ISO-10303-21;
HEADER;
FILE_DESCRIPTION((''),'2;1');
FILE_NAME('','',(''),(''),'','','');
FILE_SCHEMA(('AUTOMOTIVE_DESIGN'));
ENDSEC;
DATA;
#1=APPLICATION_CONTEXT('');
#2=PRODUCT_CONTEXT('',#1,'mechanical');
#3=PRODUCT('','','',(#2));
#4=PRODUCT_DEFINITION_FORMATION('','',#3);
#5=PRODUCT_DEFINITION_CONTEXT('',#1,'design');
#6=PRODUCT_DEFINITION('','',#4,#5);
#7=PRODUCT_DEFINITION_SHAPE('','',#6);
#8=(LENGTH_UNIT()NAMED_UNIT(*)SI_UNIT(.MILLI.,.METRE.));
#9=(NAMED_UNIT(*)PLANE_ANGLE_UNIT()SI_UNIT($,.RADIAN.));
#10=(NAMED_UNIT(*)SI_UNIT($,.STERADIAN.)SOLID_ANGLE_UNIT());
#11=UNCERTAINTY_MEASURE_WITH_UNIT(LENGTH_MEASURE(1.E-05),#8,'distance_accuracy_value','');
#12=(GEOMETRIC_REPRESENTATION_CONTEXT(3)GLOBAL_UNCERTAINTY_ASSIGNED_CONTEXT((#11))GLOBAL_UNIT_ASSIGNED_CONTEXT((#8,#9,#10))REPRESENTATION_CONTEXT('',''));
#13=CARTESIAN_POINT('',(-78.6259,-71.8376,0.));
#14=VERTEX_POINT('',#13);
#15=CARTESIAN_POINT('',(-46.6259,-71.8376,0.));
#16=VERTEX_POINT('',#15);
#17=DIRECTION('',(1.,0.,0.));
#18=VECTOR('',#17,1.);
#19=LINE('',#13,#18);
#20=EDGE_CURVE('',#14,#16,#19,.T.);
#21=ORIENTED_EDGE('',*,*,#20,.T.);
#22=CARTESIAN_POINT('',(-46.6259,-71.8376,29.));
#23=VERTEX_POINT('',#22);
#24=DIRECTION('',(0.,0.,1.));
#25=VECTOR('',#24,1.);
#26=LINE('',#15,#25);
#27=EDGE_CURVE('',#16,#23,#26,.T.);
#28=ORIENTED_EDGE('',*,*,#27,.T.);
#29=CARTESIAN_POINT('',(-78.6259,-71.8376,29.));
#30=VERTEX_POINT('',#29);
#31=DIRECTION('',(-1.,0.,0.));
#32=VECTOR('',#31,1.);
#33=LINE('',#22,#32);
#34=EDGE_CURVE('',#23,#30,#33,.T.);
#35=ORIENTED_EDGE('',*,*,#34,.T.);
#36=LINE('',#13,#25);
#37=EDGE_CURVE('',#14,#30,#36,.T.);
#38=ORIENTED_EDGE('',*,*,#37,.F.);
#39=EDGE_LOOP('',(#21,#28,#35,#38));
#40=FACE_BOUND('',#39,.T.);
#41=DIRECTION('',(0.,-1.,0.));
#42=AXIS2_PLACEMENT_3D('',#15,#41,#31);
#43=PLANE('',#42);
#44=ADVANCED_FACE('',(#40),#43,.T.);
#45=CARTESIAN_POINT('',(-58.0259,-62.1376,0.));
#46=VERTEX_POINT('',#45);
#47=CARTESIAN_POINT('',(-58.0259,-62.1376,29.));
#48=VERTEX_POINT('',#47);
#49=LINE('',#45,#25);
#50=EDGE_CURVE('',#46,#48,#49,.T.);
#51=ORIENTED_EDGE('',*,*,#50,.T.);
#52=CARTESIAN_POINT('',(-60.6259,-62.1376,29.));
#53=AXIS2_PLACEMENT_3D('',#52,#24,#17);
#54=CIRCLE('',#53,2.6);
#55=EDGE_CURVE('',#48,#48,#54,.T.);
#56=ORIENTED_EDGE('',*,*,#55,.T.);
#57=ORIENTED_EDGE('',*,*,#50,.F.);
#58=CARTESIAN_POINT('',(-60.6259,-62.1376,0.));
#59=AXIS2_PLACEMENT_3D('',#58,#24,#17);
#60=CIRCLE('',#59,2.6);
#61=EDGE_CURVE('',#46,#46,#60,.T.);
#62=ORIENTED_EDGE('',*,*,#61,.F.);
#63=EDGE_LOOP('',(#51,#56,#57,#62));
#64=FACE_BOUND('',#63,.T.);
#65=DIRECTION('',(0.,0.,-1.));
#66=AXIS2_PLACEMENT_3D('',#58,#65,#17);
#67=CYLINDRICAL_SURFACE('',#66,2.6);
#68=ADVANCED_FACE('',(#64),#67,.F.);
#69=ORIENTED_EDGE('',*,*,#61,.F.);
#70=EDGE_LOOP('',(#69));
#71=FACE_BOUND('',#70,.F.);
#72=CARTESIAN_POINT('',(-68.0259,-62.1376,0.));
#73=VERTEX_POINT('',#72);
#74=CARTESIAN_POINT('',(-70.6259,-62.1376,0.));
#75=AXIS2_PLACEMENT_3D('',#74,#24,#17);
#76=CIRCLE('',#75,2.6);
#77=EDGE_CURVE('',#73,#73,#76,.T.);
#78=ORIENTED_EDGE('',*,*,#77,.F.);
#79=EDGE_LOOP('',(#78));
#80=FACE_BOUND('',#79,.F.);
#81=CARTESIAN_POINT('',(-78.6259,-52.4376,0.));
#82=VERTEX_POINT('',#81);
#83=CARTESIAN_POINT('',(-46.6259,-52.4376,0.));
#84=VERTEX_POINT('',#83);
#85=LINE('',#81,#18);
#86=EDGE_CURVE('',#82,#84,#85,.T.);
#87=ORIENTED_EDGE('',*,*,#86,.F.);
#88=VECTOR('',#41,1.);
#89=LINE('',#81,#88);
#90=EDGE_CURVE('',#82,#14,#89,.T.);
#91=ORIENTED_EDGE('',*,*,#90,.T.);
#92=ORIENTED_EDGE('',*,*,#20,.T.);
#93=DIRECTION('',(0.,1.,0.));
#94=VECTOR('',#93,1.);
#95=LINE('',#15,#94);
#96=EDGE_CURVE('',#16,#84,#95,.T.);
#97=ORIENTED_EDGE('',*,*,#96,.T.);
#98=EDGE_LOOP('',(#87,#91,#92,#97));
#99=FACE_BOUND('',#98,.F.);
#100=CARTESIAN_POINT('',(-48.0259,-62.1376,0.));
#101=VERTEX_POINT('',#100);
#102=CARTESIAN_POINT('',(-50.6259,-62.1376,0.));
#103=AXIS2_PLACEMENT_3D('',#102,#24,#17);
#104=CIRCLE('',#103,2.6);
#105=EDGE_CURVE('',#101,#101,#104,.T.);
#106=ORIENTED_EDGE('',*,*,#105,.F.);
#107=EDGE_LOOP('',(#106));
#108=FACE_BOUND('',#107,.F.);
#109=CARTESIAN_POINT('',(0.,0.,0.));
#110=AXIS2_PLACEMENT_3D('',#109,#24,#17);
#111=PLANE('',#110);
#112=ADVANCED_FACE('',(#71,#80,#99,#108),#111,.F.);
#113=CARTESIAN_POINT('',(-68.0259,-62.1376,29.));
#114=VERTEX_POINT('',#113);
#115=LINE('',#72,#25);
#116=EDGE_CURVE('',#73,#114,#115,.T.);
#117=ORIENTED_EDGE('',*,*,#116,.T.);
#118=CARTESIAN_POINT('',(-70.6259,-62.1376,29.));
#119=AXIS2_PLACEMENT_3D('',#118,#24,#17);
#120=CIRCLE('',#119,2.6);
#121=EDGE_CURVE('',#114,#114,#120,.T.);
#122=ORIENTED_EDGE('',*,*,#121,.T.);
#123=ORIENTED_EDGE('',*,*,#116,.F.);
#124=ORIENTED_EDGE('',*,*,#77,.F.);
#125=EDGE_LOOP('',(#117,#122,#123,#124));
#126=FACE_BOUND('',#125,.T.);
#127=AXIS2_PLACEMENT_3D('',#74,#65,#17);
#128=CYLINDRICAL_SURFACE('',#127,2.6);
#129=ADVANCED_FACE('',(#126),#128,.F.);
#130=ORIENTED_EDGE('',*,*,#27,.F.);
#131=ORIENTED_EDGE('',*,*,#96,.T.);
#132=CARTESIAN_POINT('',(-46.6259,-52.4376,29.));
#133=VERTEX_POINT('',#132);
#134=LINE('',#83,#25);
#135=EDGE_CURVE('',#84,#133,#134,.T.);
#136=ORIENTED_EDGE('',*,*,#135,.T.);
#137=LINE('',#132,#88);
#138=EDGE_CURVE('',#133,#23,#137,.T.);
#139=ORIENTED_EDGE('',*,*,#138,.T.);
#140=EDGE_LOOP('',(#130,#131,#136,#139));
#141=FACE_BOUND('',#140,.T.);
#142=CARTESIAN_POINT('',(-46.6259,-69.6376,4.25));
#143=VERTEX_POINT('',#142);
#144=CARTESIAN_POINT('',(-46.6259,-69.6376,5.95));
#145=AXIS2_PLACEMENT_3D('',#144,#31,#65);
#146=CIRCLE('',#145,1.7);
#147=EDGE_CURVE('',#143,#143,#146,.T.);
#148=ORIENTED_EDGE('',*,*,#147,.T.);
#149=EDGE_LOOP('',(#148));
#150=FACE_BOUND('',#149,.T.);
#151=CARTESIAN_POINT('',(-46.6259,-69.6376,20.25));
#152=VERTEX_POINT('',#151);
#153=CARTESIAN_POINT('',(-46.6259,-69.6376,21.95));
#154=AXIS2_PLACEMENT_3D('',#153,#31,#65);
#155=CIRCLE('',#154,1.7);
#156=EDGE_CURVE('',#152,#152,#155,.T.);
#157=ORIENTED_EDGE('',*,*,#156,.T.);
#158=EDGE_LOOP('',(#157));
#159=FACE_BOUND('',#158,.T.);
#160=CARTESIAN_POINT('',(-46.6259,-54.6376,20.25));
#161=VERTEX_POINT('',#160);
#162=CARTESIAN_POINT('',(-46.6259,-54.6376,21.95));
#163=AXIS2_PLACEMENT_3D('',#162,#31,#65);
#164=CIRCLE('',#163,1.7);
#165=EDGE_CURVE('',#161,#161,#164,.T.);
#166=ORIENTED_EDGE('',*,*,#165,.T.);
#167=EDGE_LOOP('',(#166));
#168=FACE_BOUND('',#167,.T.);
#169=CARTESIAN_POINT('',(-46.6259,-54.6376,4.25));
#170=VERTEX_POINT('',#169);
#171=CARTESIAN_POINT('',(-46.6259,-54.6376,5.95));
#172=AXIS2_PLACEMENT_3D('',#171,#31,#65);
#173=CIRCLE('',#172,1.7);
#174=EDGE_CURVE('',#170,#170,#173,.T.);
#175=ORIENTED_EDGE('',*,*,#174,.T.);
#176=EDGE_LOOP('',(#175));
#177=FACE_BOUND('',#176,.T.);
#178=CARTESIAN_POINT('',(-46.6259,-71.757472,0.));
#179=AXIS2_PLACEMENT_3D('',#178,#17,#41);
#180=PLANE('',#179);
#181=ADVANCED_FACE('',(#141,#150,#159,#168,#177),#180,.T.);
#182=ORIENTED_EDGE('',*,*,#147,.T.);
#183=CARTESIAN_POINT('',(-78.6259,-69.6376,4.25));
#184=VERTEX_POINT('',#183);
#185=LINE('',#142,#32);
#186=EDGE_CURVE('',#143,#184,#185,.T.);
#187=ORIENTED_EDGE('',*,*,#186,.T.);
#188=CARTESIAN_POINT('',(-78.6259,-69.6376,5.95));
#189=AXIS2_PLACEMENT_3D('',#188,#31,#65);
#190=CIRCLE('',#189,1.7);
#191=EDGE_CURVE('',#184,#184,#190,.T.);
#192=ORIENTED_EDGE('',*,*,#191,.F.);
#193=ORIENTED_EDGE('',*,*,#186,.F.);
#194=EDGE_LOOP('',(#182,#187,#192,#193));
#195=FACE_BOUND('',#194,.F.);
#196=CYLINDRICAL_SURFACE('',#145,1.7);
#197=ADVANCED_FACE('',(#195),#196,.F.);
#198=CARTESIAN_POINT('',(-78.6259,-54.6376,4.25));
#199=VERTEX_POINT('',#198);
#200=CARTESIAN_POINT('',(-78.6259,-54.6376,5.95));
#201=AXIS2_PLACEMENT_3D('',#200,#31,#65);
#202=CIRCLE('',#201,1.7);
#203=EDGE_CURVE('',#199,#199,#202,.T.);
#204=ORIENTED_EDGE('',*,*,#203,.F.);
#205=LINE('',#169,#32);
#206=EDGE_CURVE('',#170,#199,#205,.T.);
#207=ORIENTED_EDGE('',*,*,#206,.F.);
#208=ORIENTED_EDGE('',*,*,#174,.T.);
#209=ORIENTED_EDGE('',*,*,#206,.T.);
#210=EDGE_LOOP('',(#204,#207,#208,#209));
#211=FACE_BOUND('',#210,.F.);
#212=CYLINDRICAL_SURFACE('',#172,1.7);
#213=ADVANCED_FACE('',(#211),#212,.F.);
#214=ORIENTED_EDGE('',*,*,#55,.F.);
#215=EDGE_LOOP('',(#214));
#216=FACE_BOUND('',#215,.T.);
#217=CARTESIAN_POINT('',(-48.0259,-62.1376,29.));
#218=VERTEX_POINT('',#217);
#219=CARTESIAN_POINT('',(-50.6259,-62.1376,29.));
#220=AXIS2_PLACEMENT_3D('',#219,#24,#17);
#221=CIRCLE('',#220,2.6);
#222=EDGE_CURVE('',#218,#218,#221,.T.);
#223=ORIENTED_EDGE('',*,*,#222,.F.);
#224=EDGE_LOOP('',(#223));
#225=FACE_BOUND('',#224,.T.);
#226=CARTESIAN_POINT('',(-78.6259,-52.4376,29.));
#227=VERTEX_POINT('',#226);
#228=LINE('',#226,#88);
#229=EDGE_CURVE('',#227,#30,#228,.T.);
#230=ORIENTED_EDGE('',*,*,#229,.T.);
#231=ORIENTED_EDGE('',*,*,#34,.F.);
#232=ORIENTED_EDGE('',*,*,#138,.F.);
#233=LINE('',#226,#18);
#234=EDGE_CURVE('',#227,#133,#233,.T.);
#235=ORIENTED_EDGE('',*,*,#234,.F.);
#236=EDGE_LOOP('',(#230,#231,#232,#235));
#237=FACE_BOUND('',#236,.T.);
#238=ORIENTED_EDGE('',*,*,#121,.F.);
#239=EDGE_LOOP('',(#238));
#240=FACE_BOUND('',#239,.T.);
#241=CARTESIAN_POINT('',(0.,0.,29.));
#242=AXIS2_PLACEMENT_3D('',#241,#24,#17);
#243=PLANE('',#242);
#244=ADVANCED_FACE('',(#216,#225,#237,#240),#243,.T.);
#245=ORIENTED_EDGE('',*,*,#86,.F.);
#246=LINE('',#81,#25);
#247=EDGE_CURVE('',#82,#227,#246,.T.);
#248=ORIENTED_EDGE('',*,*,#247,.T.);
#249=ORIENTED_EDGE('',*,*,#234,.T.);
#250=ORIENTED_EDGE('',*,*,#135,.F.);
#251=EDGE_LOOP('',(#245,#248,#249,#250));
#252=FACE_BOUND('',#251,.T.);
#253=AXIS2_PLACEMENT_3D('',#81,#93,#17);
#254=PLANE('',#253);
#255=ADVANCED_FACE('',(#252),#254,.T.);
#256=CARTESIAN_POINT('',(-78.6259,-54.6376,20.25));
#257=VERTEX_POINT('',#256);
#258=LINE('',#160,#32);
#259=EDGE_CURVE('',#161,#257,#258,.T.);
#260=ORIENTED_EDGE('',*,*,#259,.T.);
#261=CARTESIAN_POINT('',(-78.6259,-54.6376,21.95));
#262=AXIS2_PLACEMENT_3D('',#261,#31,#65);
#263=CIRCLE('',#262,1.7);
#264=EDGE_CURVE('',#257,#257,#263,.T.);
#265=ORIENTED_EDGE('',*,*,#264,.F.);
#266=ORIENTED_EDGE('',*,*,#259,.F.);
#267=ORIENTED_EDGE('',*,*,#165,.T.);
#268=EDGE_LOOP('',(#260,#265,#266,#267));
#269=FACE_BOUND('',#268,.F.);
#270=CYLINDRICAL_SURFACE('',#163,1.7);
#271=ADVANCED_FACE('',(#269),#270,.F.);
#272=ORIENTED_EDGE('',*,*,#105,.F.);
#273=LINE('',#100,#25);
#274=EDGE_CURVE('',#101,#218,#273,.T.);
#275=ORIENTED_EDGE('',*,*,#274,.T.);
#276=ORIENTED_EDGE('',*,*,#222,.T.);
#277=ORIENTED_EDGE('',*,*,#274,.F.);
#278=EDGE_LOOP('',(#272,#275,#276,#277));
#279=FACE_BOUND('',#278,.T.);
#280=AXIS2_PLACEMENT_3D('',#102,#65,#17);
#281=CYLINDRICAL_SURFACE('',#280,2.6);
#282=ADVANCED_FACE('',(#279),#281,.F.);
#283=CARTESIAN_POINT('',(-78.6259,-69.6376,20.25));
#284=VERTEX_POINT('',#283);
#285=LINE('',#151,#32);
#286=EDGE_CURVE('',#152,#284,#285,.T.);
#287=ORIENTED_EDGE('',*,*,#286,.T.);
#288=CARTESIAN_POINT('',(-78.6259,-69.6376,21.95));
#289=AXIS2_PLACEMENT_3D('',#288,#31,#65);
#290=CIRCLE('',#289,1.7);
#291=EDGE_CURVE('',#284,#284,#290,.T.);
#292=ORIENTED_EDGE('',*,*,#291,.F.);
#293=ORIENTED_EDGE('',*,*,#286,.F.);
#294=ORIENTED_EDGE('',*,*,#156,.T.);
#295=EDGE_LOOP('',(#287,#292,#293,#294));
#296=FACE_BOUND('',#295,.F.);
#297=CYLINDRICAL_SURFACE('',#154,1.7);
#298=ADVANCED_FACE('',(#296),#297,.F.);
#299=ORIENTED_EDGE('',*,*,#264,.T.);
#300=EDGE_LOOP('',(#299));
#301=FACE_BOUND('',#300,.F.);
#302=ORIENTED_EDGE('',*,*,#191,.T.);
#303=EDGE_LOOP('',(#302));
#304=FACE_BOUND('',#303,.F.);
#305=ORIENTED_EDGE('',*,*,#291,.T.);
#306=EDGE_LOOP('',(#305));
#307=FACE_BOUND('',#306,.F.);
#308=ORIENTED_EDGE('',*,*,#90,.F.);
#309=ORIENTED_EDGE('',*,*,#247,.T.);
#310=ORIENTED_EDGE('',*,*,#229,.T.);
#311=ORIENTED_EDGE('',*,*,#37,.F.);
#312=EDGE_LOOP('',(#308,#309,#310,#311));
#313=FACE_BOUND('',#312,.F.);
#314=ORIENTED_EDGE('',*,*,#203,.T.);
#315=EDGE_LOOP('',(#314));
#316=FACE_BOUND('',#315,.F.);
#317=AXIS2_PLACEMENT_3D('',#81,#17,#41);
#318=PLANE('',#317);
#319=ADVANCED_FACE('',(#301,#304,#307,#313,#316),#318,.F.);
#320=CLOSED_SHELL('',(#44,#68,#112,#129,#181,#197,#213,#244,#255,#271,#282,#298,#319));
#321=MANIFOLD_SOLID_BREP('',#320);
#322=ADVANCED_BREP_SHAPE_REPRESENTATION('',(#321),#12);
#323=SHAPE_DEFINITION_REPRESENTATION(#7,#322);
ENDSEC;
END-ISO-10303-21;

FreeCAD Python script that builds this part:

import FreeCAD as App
import Part
import Sketcher

V = App.Vector
Q = App.Units.Quantity

doc = App.newDocument("Part")
params = doc.addObject("Spreadsheet::Sheet", "Params")
for row, (alias, value) in enumerate([
    ("sketch1_diameter", "5.2 mm"),
    ("sketch1_width", "32 mm"),
    ("sketch1_height", "19.4 mm"),
    ("pad1_length", "29 mm"),
    ("sketch2_diameter", "3.4 mm"),
    ("hole_diameter", "3.4 mm"),
], start=1):
    params.set(f"A{row}", alias)
    params.set(f"B{row}", "=" + value)
    params.setAlias(f"B{row}", alias)

body = doc.addObject("PartDesign::Body", "Body")

# Sketch on XY plane
sketch1 = body.newObject("Sketcher::SketchObject", "Sketch")
sketch1.AttachmentSupport = (doc.getObject("XY_Plane"), [""])
sketch1.MapMode = "FlatFace"
sketch1.addGeometry(Part.LineSegment(V(-46.6, -71.8, 0), V(-46.6, -52.4, 0)), False)
sketch1.addGeometry(Part.LineSegment(V(-46.6, -52.4, 0), V(-78.6, -52.4, 0)), False)
sketch1.addGeometry(Part.LineSegment(V(-78.6, -52.4, 0), V(-78.6, -71.8, 0)), False)
sketch1.addGeometry(Part.LineSegment(V(-78.6, -71.8, 0), V(-46.6, -71.8, 0)), False)
sketch1.addGeometry(Part.Circle(V(-50.6, -62.1, 0), V(0, 0, 1), 2.6), False)
sketch1.addGeometry(Part.Circle(V(-70.6, -62.1, 0), V(0, 0, 1), 2.6), False)
sketch1.addGeometry(Part.Circle(V(-60.6, -62.1, 0), V(0, 0, 1), 2.6), False)
sketch1.addConstraint(Sketcher.Constraint("Coincident", 0, 2, 1, 1))
sketch1.addConstraint(Sketcher.Constraint("Coincident", 1, 2, 2, 1))
sketch1.addConstraint(Sketcher.Constraint("Coincident", 2, 2, 3, 1))
sketch1.addConstraint(Sketcher.Constraint("Coincident", 3, 2, 0, 1))
sketch1.addConstraint(Sketcher.Constraint("Vertical", 0))
sketch1.addConstraint(Sketcher.Constraint("Horizontal", 1))
sketch1.addConstraint(Sketcher.Constraint("Vertical", 2))
sketch1.addConstraint(Sketcher.Constraint("Horizontal", 3))
sketch1.addConstraint(Sketcher.Constraint("Equal", 4, 5))
sketch1.addConstraint(Sketcher.Constraint("Equal", 5, 6))
sketch1.addConstraint(Sketcher.Constraint("Horizontal", 4, 3, 5, 3))
sketch1.addConstraint(Sketcher.Constraint("Horizontal", 5, 3, 6, 3))
sketch1.addConstraint(Sketcher.Constraint("Diameter", 4, Q("5.2 mm")))
sketch1.addConstraint(Sketcher.Constraint("DistanceX", 1, 2, 1, 1, Q("32 mm")))
sketch1.addConstraint(Sketcher.Constraint("DistanceY", 0, 1, 0, 2, Q("19.4 mm")))
sketch1.addConstraint(Sketcher.Constraint("DistanceX", 5, 3, 4, 3, Q("20 mm")))
sketch1.addConstraint(Sketcher.Constraint("DistanceX", 6, 3, 4, 3, Q("10 mm")))
sketch1.addConstraint(Sketcher.Constraint("DistanceX", 4, 3, 0, 2, Q("4 mm")))
sketch1.addConstraint(Sketcher.Constraint("DistanceY", 4, 3, 0, 2, Q("9.7 mm")))
sketch1.addConstraint(Sketcher.Constraint("DistanceX", 4, 3, -1, 1, Q("50.626 mm")))
sketch1.addConstraint(Sketcher.Constraint("DistanceY", 4, 3, -1, 1, Q("62.1376 mm")))
sketch1.setExpression("Constraints[12]", "Params.sketch1_diameter")
sketch1.setExpression("Constraints[13]", "Params.sketch1_width")
sketch1.setExpression("Constraints[14]", "Params.sketch1_height")
pad1 = body.newObject("PartDesign::Pad", "Pad")
pad1.Profile = sketch1
pad1.setExpression("Length", "Params.pad1_length")

# Sketch on YZ plane
sketch2 = body.newObject("Sketcher::SketchObject", "Sketch001")
sketch2.AttachmentSupport = (doc.getObject("YZ_Plane"), [""])
sketch2.MapMode = "FlatFace"
sketch2.AttachmentOffset = App.Placement(V(0, 0, -46.6259), App.Rotation())
sketch2.addGeometry(Part.Circle(V(-69.6, 21.9, 0), V(0, 0, 1), 1.7), False)
sketch2.addGeometry(Part.Circle(V(-69.6, 6, 0), V(0, 0, 1), 1.7), False)
sketch2.addGeometry(Part.Circle(V(-54.6, 6, 0), V(0, 0, 1), 1.7), False)
sketch2.addGeometry(Part.Circle(V(-54.6, 21.9, 0), V(0, 0, 1), 1.7), False)
sketch2.addConstraint(Sketcher.Constraint("Equal", 0, 1))
sketch2.addConstraint(Sketcher.Constraint("Equal", 1, 2))
sketch2.addConstraint(Sketcher.Constraint("Equal", 2, 3))
sketch2.addConstraint(Sketcher.Constraint("Horizontal", 1, 3, 2, 3))
sketch2.addConstraint(Sketcher.Constraint("Horizontal", 0, 3, 3, 3))
sketch2.addConstraint(Sketcher.Constraint("Vertical", 0, 3, 1, 3))
sketch2.addConstraint(Sketcher.Constraint("Vertical", 2, 3, 3, 3))
sketch2.addConstraint(Sketcher.Constraint("Diameter", 0, Q("3.4 mm")))
sketch2.addConstraint(Sketcher.Constraint("DistanceY", 1, 3, 0, 3, Q("16 mm")))
sketch2.addConstraint(Sketcher.Constraint("DistanceX", 1, 3, 2, 3, Q("15 mm")))
sketch2.addConstraint(Sketcher.Constraint("DistanceY", -1, 1, 0, 3, Q("21.95 mm")))
sketch2.addConstraint(Sketcher.Constraint("DistanceX", 0, 3, -1, 1, Q("69.6376 mm")))
sketch2.setExpression("Constraints[7]", "Params.sketch2_diameter")
doc.recompute()
hole = body.newObject("PartDesign::Hole", "Hole")
hole.Profile = sketch2
hole.ThreadType = "None"
hole.setExpression("Diameter", "Params.hole_diameter")
hole.DepthType = "ThroughAll"

doc.recompute()
